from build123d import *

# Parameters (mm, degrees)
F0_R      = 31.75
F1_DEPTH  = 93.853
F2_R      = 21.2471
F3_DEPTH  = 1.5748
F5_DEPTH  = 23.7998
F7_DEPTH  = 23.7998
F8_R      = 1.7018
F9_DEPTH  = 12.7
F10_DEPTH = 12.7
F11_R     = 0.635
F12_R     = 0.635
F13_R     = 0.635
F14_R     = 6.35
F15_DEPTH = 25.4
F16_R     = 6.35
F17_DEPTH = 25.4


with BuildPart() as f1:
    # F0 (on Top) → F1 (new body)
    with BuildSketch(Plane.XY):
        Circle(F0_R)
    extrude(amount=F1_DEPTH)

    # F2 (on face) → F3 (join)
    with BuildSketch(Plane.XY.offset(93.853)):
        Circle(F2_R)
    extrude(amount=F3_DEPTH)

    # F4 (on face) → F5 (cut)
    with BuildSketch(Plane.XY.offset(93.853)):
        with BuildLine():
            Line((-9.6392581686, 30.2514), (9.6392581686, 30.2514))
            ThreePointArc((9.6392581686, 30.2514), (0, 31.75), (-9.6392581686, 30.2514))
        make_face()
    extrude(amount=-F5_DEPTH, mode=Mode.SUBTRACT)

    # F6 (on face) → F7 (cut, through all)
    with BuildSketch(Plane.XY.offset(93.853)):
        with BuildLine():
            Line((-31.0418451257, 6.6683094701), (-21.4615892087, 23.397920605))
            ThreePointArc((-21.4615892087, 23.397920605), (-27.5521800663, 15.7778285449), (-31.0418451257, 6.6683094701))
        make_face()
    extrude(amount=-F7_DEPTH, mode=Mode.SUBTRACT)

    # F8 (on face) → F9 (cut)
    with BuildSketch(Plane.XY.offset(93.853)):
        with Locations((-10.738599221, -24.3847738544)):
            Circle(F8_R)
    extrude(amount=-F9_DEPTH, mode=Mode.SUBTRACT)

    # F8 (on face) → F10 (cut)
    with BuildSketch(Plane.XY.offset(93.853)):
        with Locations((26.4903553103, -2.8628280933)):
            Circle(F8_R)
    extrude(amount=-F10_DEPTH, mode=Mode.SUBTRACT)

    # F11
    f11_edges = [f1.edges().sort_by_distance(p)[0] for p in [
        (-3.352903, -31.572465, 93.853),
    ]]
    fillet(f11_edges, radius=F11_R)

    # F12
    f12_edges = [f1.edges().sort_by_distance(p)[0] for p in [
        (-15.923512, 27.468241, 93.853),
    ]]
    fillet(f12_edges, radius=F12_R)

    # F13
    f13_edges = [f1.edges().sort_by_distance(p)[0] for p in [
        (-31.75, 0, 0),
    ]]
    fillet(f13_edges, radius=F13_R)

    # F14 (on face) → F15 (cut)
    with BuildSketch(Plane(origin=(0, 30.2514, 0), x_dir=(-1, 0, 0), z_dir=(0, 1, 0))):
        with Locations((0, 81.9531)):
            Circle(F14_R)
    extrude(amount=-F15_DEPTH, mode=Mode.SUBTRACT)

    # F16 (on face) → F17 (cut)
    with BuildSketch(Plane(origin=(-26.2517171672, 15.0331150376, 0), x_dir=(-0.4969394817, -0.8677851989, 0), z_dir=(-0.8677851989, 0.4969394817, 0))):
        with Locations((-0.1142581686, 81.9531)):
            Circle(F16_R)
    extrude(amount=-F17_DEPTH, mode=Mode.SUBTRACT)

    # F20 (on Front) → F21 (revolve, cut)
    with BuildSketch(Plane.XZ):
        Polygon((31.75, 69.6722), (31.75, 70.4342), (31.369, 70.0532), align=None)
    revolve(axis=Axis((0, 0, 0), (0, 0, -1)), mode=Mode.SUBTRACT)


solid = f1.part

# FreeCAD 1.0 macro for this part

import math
import FreeCAD as App
import Part
import Sketcher
Q = App.Units.Quantity


def edges_at(feature, points):
    """Names of the edges that pass closest to the given points."""
    edges = feature.Shape.Edges
    near = lambda p: min(range(len(edges)), key=lambda i: edges[i].distToShape(Part.Vertex(*p))[0])
    return sorted({f"Edge{near(p) + 1}" for p in points})

doc = App.newDocument("Part")
body = doc.addObject("PartDesign::Body", "Body")

# Sketch on XY plane
sketch1 = doc.addObject("Sketcher::SketchObject", "Sketch")
body.addObject(sketch1)
sketch1.AttachmentSupport = (doc.XY_Plane, [""])
sketch1.MapMode = "FlatFace"
sketch1.addGeometry(Part.Circle(App.Vector(0, 0, 0), App.Vector(0, 0, 1), 32), False)
sketch1.addConstraint([
    Sketcher.Constraint("Coincident", 0, 3, -1, 1),
    Sketcher.Constraint("Diameter", 0, Q("2.5 in")),
])
pad1 = doc.addObject("PartDesign::Pad", "Pad")
body.addObject(pad1)
pad1.Profile = sketch1
pad1.Length = Q("3.695 in")

# Sketch on XY plane
sketch2 = doc.addObject("Sketcher::SketchObject", "Sketch001")
body.addObject(sketch2)
sketch2.AttachmentSupport = (doc.XY_Plane, [""])
sketch2.MapMode = "FlatFace"
sketch2.AttachmentOffset = App.Placement(App.Vector(0, 0, 3.695 * 25.4), App.Rotation())
sketch2.addGeometry(Part.Circle(App.Vector(0, 0, 0), App.Vector(0, 0, 1), 21), False)
sketch2.addConstraint([
    Sketcher.Constraint("Coincident", 0, 3, -1, 1),
    Sketcher.Constraint("Diameter", 0, Q("1.673 in")),
])
pad2 = doc.addObject("PartDesign::Pad", "Pad001")
body.addObject(pad2)
pad2.Profile = sketch2
pad2.Length = Q("0.062 in")

# Sketch on XY plane
sketch3 = doc.addObject("Sketcher::SketchObject", "Sketch002")
body.addObject(sketch3)
sketch3.AttachmentSupport = (doc.XY_Plane, [""])
sketch3.MapMode = "FlatFace"
sketch3.AttachmentOffset = App.Placement(App.Vector(0, 0, 3.695 * 25.4), App.Rotation())
sketch3.addGeometry([
    Part.LineSegment(App.Vector(-10, 30, 0), App.Vector(10, 30, 0)),
    Part.ArcOfCircle(Part.Circle(App.Vector(0, 0, 0), App.Vector(0, 0, 1), 32), math.radians(72), math.radians(108)),
], False)
sketch3.addConstraint([
    Sketcher.Constraint("Coincident", 0, 1, 1, 2),
    Sketcher.Constraint("Coincident", 1, 1, 0, 2),
    Sketcher.Constraint("Horizontal", 0),
    Sketcher.Constraint("Coincident", 1, 3, -1, 1),
    Sketcher.Constraint("Radius", 1, Q("1.25 in")),
    Sketcher.Constraint("DistanceY", -1, 1, 0, 1, Q("1.191 in")),
])
pocket1 = doc.addObject("PartDesign::Pocket", "Pocket")
body.addObject(pocket1)
pocket1.Profile = sketch3
pocket1.Length = Q("0.937 in")

# Sketch on XY plane
sketch4 = doc.addObject("Sketcher::SketchObject", "Sketch003")
body.addObject(sketch4)
sketch4.AttachmentSupport = (doc.XY_Plane, [""])
sketch4.MapMode = "FlatFace"
sketch4.AttachmentOffset = App.Placement(App.Vector(0, 0, 3.695 * 25.4), App.Rotation())
sketch4.addGeometry([
    Part.LineSegment(App.Vector(-31, 7, 0), App.Vector(-21, 23, 0)),
    Part.ArcOfCircle(Part.Circle(App.Vector(0, 0, 0), App.Vector(0, 0, 1), 32), math.radians(133), math.radians(168)),
], False)
sketch4.addConstraint([
    Sketcher.Constraint("Coincident", 0, 1, 1, 2),
    Sketcher.Constraint("Coincident", 1, 1, 0, 2),
    Sketcher.Constraint("Coincident", 1, 3, -1, 1),
    Sketcher.Constraint("Radius", 1, Q("1.25 in")),
    Sketcher.Constraint("DistanceY", -1, 1, 0, 1, 6.668309),
    Sketcher.Constraint("DistanceX", 1, 1, -1, 1, 21.461589),
])
pocket2 = doc.addObject("PartDesign::Pocket", "Pocket001")
body.addObject(pocket2)
pocket2.Profile = sketch4
pocket2.Length = Q("0.937 in")

# Sketch on XY plane
sketch5 = doc.addObject("Sketcher::SketchObject", "Sketch004")
body.addObject(sketch5)
sketch5.AttachmentSupport = (doc.XY_Plane, [""])
sketch5.MapMode = "FlatFace"
sketch5.AttachmentOffset = App.Placement(App.Vector(0, 0, 3.695 * 25.4), App.Rotation())
sketch5.addGeometry(Part.Circle(App.Vector(-10.7, -24.4, 0), App.Vector(0, 0, 1), 1.7), False)
sketch5.addConstraint([
    Sketcher.Constraint("Diameter", 0, Q("0.134 in")),
    Sketcher.Constraint("DistanceX", 0, 3, -1, 1, 10.738599),
    Sketcher.Constraint("DistanceY", 0, 3, -1, 1, 24.384774),
])
pocket3 = doc.addObject("PartDesign::Pocket", "Pocket002")
body.addObject(pocket3)
pocket3.Profile = sketch5
pocket3.Length = Q("0.5 in")

# Sketch on XY plane
sketch6 = doc.addObject("Sketcher::SketchObject", "Sketch005")
body.addObject(sketch6)
sketch6.AttachmentSupport = (doc.XY_Plane, [""])
sketch6.MapMode = "FlatFace"
sketch6.AttachmentOffset = App.Placement(App.Vector(0, 0, 3.695 * 25.4), App.Rotation())
sketch6.addGeometry(Part.Circle(App.Vector(26.5, -2.9, 0), App.Vector(0, 0, 1), 1.7), False)
sketch6.addConstraint([
    Sketcher.Constraint("Diameter", 0, Q("0.134 in")),
    Sketcher.Constraint("DistanceY", 0, 3, -1, 1, 2.862828),
    Sketcher.Constraint("DistanceX", -1, 1, 0, 3, 26.490355),
])
pocket4 = doc.addObject("PartDesign::Pocket", "Pocket003")
body.addObject(pocket4)
pocket4.Profile = sketch6
pocket4.Length = Q("0.5 in")
doc.recompute()

fillet = doc.addObject("PartDesign::Fillet", "Fillet")
body.addObject(fillet)
fillet.Base = (pocket4, edges_at(pocket4, [(-3.353, -31.572, 93.853)]))
fillet.Radius = Q("0.025 in")
doc.recompute()

fillet2 = doc.addObject("PartDesign::Fillet", "Fillet001")
body.addObject(fillet2)
fillet2.Base = (fillet, edges_at(fillet, [(-15.924, 27.468, 93.853)]))
fillet2.Radius = Q("0.025 in")
doc.recompute()

fillet3 = doc.addObject("PartDesign::Fillet", "Fillet002")
body.addObject(fillet3)
fillet3.Base = (fillet2, edges_at(fillet2, [(-31.75, 0, 0)]))
fillet3.Radius = Q("0.025 in")

# Sketch on XZ plane
sketch7 = doc.addObject("Sketcher::SketchObject", "Sketch006")
body.addObject(sketch7)
sketch7.AttachmentSupport = (doc.XZ_Plane, [""])
sketch7.MapMode = "FlatFace"
sketch7.AttachmentOffset = App.Placement(App.Vector(0, 0, -1.191 * 25.4), App.Rotation())
sketch7.addGeometry(Part.Circle(App.Vector(0, 82, 0), App.Vector(0, 0, 1), 6), False)
sketch7.addConstraint([
    Sketcher.Constraint("PointOnObject", 0, 3, -2),
    Sketcher.Constraint("Diameter", 0, Q("0.5 in")),
    Sketcher.Constraint("DistanceY", -1, 1, 0, 3, Q("3.2265 in")),
])
pocket5 = doc.addObject("PartDesign::Pocket", "Pocket004")
body.addObject(pocket5)
pocket5.Profile = sketch7
pocket5.Length = Q("1 in")
pocket5.Reversed = True

# Sketch on an angled plane
sketch8 = doc.addObject("Sketcher::SketchObject", "Sketch007")
body.addObject(sketch8)
sketch8.Placement = App.Placement(App.Vector(-26.251717, 15.033115, 0), App.Rotation(App.Vector(-0.496939482, -0.867785199, 0), App.Vector(0, 0, 1), App.Vector(-0.867785199, 0.496939482, 0), "ZXY"))
sketch8.addGeometry(Part.Circle(App.Vector(0, 82, 0), App.Vector(0, 0, 1), 6), False)
sketch8.addConstraint([
    Sketcher.Constraint("Diameter", 0, Q("0.5 in")),
    Sketcher.Constraint("DistanceY", -1, 1, 0, 3, Q("3.2265 in")),
    Sketcher.Constraint("DistanceX", 0, 3, -1, 1, 0.114258),
])
pocket6 = doc.addObject("PartDesign::Pocket", "Pocket005")
body.addObject(pocket6)
pocket6.Profile = sketch8
pocket6.Length = Q("1 in")

# Sketch on XZ plane
sketch9 = doc.addObject("Sketcher::SketchObject", "Sketch008")
body.addObject(sketch9)
sketch9.AttachmentSupport = (doc.XZ_Plane, [""])
sketch9.MapMode = "FlatFace"
sketch9.addGeometry([
    Part.LineSegment(App.Vector(31.8, 69.7, 0), App.Vector(31.8, 70.4, 0)),
    Part.LineSegment(App.Vector(31.8, 70.4, 0), App.Vector(31.4, 70.1, 0)),
    Part.LineSegment(App.Vector(31.4, 70.1, 0), App.Vector(31.8, 69.7, 0)),
], False)
sketch9.addConstraint([
    Sketcher.Constraint("Coincident", 0, 2, 1, 1),
    Sketcher.Constraint("Coincident", 1, 2, 2, 1),
    Sketcher.Constraint("Coincident", 2, 2, 0, 1),
    Sketcher.Constraint("Vertical", 0),
    Sketcher.Constraint("Perpendicular", 1, 2),
    Sketcher.Constraint("Equal", 1, 2),
    Sketcher.Constraint("DistanceY", 0, 1, 0, 2, Q("0.03 in")),
    Sketcher.Constraint("DistanceX", -1, 1, 0, 2, Q("1.25 in")),
    Sketcher.Constraint("DistanceY", -1, 1, 0, 2, Q("2.773 in")),
])
groove = doc.addObject("PartDesign::Groove", "Groove")
body.addObject(groove)
groove.Profile = sketch9
groove.ReferenceAxis = (sketch9, ["V_Axis"])
groove.Angle = 360

doc.recompute()
